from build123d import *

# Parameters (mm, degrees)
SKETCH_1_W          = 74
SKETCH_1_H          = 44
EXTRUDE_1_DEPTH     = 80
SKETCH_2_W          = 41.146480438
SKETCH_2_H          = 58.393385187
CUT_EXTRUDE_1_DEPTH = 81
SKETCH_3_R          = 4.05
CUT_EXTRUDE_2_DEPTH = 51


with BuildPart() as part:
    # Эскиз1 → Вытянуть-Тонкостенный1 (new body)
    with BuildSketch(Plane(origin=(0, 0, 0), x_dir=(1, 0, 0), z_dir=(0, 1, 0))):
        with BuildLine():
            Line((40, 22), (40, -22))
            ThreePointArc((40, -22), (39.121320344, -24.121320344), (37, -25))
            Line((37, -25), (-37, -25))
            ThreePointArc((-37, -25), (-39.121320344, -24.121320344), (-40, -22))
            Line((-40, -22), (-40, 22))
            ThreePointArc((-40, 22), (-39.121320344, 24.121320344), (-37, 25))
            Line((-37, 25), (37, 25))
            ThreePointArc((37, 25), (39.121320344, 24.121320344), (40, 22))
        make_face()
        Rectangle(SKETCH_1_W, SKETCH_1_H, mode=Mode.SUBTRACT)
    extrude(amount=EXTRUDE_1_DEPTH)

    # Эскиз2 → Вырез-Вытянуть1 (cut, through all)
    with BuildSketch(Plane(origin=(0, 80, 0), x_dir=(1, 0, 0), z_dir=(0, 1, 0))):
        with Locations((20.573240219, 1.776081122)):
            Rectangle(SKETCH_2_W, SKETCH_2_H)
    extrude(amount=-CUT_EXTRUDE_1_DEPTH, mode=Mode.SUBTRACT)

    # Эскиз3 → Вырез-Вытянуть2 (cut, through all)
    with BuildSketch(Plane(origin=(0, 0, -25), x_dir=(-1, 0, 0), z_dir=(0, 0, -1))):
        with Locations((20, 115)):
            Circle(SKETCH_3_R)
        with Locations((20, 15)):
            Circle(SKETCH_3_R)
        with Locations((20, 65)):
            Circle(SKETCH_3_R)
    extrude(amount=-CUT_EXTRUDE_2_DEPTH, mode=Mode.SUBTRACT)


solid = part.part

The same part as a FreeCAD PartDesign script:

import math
import FreeCAD as App
import Part
import Sketcher

V = App.Vector


def add_polygon(sketch, points):
    """Adds a closed chain of lines whose ends are joined by coincident constraints."""
    first, n = sketch.GeometryCount, len(points)
    for a, b in zip(points, points[1:] + points[:1]):
        sketch.addGeometry(Part.LineSegment(App.Vector(*a, 0), App.Vector(*b, 0)), False)
    for i in range(n):
        sketch.addConstraint(Sketcher.Constraint("Coincident", first + i, 2, first + (i + 1) % n, 1))

doc = App.newDocument("Part")
body = doc.addObject("PartDesign::Body", "Body")

# Sketch on XZ plane
sketch1 = body.newObject("Sketcher::SketchObject", "Sketch")
sketch1.AttachmentSupport = (doc.getObject("XZ_Plane"), [""])
sketch1.MapMode = "FlatFace"
sketch1.addGeometry(Part.LineSegment(V(40, 22, 0), V(40, -22, 0)), False)  # 0
sketch1.addGeometry(Part.ArcOfCircle(Part.Circle(V(37, -22, 0), V(0, 0, 1), 3), math.radians(-90), math.radians(0)), False)  # 1
sketch1.addGeometry(Part.LineSegment(V(37, -25, 0), V(-37, -25, 0)), False)  # 2
sketch1.addGeometry(Part.ArcOfCircle(Part.Circle(V(-37, -22, 0), V(0, 0, 1), 3), math.radians(180), math.radians(270)), False)  # 3
sketch1.addGeometry(Part.LineSegment(V(-40, -22, 0), V(-40, 22, 0)), False)  # 4
sketch1.addGeometry(Part.ArcOfCircle(Part.Circle(V(-37, 22, 0), V(0, 0, 1), 3), math.radians(90), math.radians(180)), False)  # 5
sketch1.addGeometry(Part.LineSegment(V(-37, 25, 0), V(37, 25, 0)), False)  # 6
sketch1.addGeometry(Part.ArcOfCircle(Part.Circle(V(37, 22, 0), V(0, 0, 1), 3), math.radians(0), math.radians(90)), False)  # 7
add_polygon(sketch1, [(-37, 22), (-37, -22), (37, -22), (37, 22)])  # lines 8-11
sketch1.addConstraint([
    Sketcher.Constraint("Tangent", 0, 2, 1, 2),
    Sketcher.Constraint("Tangent", 1, 1, 2, 1),
    Sketcher.Constraint("Tangent", 2, 2, 3, 2),
    Sketcher.Constraint("Tangent", 3, 1, 4, 1),
    Sketcher.Constraint("Tangent", 4, 2, 5, 2),
    Sketcher.Constraint("Tangent", 5, 1, 6, 1),
    Sketcher.Constraint("Tangent", 6, 2, 7, 2),
    Sketcher.Constraint("Tangent", 7, 1, 0, 1),
    Sketcher.Constraint("Vertical", 0),
    Sketcher.Constraint("Horizontal", 2),
    Sketcher.Constraint("Vertical", 4),
    Sketcher.Constraint("Horizontal", 6),
    Sketcher.Constraint("Vertical", 8),
    Sketcher.Constraint("Horizontal", 9),
    Sketcher.Constraint("Vertical", 10),
    Sketcher.Constraint("Horizontal", 11),
    Sketcher.Constraint("Coincident", 8, 2, 3, 3),
    Sketcher.Constraint("Coincident", 9, 2, 1, 3),
    Sketcher.Constraint("Coincident", 10, 2, 7, 3),
    Sketcher.Constraint("Equal", 3, 5),
    Sketcher.Constraint("Symmetric", 1, 3, 5, 3, -1, 1),
    Sketcher.Constraint("Radius", 1, 3.0),
    Sketcher.Constraint("DistanceX", 2, 2, 2, 1, 74.0),
    Sketcher.Constraint("DistanceY", 0, 2, 0, 1, 44.0),
])
pad1 = body.newObject("PartDesign::Pad", "Pad")
pad1.Profile = sketch1
pad1.Length = 80
pad1.Reversed = True

# Sketch on XZ plane
sketch2 = body.newObject("Sketcher::SketchObject", "Sketch001")
sketch2.AttachmentSupport = (doc.getObject("XZ_Plane"), [""])
sketch2.MapMode = "FlatFace"
sketch2.AttachmentOffset = App.Placement(V(0, 0, -80), App.Rotation())
add_polygon(sketch2, [(0, -30.972774), (0, 27.420611), (41.14648, 27.420611), (41.14648, -30.972774)])  # lines 0-3
sketch2.addConstraint([
    Sketcher.Constraint("Vertical", 0),
    Sketcher.Constraint("Horizontal", 1),
    Sketcher.Constraint("Vertical", 2),
    Sketcher.Constraint("Horizontal", 3),
    Sketcher.Constraint("PointOnObject", 0, 2, -2),
    Sketcher.Constraint("DistanceX", 1, 1, 1, 2, 41.14648),
    Sketcher.Constraint("DistanceY", 0, 1, 0, 2, 58.393385),
    Sketcher.Constraint("DistanceY", -1, 1, 0, 2, 27.420611),
])
pocket1 = body.newObject("PartDesign::Pocket", "Pocket")
pocket1.Profile = sketch2
pocket1.Type = "ThroughAll"
pocket1.Reversed = True

# Sketch on XY plane
sketch3 = body.newObject("Sketcher::SketchObject", "Sketch002")
sketch3.AttachmentSupport = (doc.getObject("XY_Plane"), [""])
sketch3.MapMode = "FlatFace"
sketch3.AttachmentOffset = App.Placement(V(0, 0, -25), App.Rotation())
sketch3.addGeometry([
    Part.Circle(V(-20, 115, 0), V(0, 0, 1), 4.05),
    Part.Circle(V(-20, 15, 0), V(0, 0, 1), 4.05),
    Part.Circle(V(-20, 65, 0), V(0, 0, 1), 4.05),
], False)
sketch3.addConstraint([
    Sketcher.Constraint("Equal", 0, 1),
    Sketcher.Constraint("Equal", 1, 2),
    Sketcher.Constraint("Vertical", 0, 3, 1, 3),
    Sketcher.Constraint("Vertical", 1, 3, 2, 3),
    Sketcher.Constraint("Diameter", 0, 8.1),
    Sketcher.Constraint("DistanceX", 0, 3, -1, 1, 20.0),
    Sketcher.Constraint("DistanceY", -1, 1, 0, 3, 115.0),
    Sketcher.Constraint("DistanceY", -1, 1, 1, 3, 15.0),
    Sketcher.Constraint("DistanceY", -1, 1, 2, 3, 65.0),
])
pocket2 = body.newObject("PartDesign::Pocket", "Pocket001")
pocket2.Profile = sketch3
pocket2.Type = "ThroughAll"
pocket2.Reversed = True

doc.recompute()
